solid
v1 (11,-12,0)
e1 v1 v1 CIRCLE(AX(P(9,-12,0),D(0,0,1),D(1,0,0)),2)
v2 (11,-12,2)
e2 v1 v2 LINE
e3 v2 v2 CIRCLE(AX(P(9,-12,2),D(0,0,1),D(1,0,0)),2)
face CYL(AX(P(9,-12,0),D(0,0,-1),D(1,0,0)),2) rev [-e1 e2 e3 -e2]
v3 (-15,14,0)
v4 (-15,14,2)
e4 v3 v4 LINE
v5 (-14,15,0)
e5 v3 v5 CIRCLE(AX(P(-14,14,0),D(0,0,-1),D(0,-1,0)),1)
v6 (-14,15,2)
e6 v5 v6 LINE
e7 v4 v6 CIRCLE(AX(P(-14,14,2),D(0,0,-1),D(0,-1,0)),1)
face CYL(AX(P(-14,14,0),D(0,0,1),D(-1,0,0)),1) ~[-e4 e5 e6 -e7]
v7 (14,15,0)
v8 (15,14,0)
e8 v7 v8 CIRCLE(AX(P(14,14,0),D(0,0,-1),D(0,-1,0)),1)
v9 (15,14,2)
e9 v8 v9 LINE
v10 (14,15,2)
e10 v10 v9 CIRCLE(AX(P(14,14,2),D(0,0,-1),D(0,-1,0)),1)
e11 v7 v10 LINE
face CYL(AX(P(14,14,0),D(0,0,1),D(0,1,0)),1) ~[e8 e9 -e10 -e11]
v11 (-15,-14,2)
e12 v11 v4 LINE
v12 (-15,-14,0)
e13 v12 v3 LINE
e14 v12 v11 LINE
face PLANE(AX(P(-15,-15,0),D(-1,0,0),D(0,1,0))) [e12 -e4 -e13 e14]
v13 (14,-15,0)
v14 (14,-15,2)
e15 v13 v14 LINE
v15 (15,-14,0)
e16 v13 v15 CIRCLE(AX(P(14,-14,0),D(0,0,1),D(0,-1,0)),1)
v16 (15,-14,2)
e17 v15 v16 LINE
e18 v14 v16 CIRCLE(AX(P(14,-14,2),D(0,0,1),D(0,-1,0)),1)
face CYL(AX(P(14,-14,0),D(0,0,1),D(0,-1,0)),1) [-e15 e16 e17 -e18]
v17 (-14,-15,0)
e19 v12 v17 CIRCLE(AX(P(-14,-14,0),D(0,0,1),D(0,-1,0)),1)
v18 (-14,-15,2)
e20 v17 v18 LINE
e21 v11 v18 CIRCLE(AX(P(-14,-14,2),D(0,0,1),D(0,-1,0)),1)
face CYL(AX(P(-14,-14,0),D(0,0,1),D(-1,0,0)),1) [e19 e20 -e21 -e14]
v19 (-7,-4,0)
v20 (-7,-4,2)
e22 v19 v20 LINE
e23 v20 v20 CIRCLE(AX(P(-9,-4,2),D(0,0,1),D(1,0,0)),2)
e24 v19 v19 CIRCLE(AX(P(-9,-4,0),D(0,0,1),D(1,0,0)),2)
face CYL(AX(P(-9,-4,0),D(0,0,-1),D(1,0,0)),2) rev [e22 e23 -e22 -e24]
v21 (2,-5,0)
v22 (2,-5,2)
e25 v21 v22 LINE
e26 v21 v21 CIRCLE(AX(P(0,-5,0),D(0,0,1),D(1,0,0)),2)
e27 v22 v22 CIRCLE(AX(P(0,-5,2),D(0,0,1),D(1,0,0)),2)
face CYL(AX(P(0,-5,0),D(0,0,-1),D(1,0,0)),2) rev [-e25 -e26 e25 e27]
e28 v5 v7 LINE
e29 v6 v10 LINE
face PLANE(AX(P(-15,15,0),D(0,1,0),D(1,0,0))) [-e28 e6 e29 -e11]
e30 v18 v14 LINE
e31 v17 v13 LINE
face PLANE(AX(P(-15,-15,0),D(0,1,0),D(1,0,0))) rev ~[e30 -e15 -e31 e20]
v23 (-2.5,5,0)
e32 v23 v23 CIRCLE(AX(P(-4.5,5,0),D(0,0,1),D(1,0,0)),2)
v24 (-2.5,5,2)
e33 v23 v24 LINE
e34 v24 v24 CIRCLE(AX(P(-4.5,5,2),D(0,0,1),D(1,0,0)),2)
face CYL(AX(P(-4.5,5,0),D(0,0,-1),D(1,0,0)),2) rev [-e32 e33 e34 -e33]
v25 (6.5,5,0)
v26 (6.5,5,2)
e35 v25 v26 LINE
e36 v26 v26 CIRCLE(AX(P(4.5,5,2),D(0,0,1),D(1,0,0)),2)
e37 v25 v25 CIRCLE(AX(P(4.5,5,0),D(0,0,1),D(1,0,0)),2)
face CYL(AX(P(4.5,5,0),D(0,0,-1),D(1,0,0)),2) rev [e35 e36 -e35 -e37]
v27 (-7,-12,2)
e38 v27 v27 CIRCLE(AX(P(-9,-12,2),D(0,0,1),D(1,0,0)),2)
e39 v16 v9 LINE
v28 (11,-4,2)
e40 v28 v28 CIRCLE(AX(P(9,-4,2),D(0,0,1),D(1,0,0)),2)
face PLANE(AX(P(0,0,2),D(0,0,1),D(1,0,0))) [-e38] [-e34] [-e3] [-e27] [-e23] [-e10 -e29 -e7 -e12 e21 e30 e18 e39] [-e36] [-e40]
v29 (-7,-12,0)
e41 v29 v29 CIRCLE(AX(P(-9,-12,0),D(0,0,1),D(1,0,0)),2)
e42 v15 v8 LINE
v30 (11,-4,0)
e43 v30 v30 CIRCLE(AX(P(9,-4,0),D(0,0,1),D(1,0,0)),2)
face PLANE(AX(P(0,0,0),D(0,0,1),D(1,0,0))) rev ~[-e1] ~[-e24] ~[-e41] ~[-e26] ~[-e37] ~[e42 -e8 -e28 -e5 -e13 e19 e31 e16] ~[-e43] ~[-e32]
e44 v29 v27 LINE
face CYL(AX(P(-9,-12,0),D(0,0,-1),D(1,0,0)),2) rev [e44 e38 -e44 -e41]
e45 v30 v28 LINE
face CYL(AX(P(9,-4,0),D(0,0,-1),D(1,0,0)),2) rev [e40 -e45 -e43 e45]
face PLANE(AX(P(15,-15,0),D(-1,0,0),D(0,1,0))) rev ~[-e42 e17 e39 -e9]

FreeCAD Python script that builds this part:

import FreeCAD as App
import Part
import Sketcher

V = App.Vector
Q = App.Units.Quantity


def edges_at(feature, points):
    """Names of the edges that pass closest to the given points."""
    edges = feature.Shape.Edges
    near = lambda p: min(range(len(edges)), key=lambda i: edges[i].distToShape(Part.Vertex(*p))[0])
    return sorted({f"Edge{near(p) + 1}" for p in points})


def add_polygon(sketch, points):
    """Adds a closed chain of lines whose ends are joined by coincident constraints."""
    first, n = sketch.GeometryCount, len(points)
    for a, b in zip(points, points[1:] + points[:1]):
        sketch.addGeometry(Part.LineSegment(App.Vector(*a, 0), App.Vector(*b, 0)), False)
    for i in range(n):
        sketch.addConstraint(Sketcher.Constraint("Coincident", first + i, 2, first + (i + 1) % n, 1))

doc = App.newDocument("Part")
body = doc.addObject("PartDesign::Body", "Body")

# Sketch on XY plane
sketch1 = body.newObject("Sketcher::SketchObject", "Sketch")
sketch1.AttachmentSupport = (doc.getObject("XY_Plane"), [""])
sketch1.MapMode = "FlatFace"
add_polygon(sketch1, [(-15, 15), (-15, -15), (15, -15), (15, 15)])  # lines 0-3
sketch1.addGeometry(Part.Circle(V(-9, -12, 0), V(0, 0, 1), 2), False)  # 4
sketch1.addGeometry(Part.Circle(V(-9, -4, 0), V(0, 0, 1), 2), False)  # 5
sketch1.addGeometry(Part.Circle(V(9, -12, 0), V(0, 0, 1), 2), False)  # 6
sketch1.addGeometry(Part.Circle(V(0, -5, 0), V(0, 0, 1), 2), False)  # 7
sketch1.addGeometry(Part.Circle(V(9, -4, 0), V(0, 0, 1), 2), False)  # 8
sketch1.addGeometry(Part.Circle(V(-4.5, 5, 0), V(0, 0, 1), 2), False)  # 9
sketch1.addGeometry(Part.Circle(V(4.5, 5, 0), V(0, 0, 1), 2), False)  # 10
sketch1.addConstraint([
    Sketcher.Constraint("Vertical", 0),
    Sketcher.Constraint("Horizontal", 1),
    Sketcher.Constraint("Vertical", 2),
    Sketcher.Constraint("Horizontal", 3),
    Sketcher.Constraint("Equal", 4, 5),
    Sketcher.Constraint("Equal", 5, 6),
    Sketcher.Constraint("Equal", 6, 7),
    Sketcher.Constraint("Equal", 7, 8),
    Sketcher.Constraint("Equal", 8, 9),
    Sketcher.Constraint("Equal", 9, 10),
    Sketcher.Constraint("Symmetric", 0, 2, 2, 2, -1, 1),
    Sketcher.Constraint("Symmetric", 4, 3, 6, 3, -2),
    Sketcher.Constraint("Symmetric", 5, 3, 8, 3, -2),
    Sketcher.Constraint("Symmetric", 9, 3, 10, 3, -2),
    Sketcher.Constraint("PointOnObject", 7, 3, -2),
    Sketcher.Constraint("Vertical", 4, 3, 5, 3),
    Sketcher.Constraint("Equal", 3, 0),
    Sketcher.Constraint("Diameter", 4, Q("4 mm")),
    Sketcher.Constraint("DistanceX", 1, 1, 1, 2, Q("30 mm")),
    Sketcher.Constraint("DistanceX", 4, 3, -1, 1, Q("9 mm")),
    Sketcher.Constraint("DistanceY", 4, 3, -1, 1, Q("12 mm")),
    Sketcher.Constraint("DistanceY", 5, 3, -1, 1, Q("4 mm")),
    Sketcher.Constraint("DistanceY", 7, 3, -1, 1, Q("5 mm")),
    Sketcher.Constraint("DistanceY", -1, 1, 9, 3, Q("5 mm")),
    Sketcher.Constraint("DistanceX", 9, 3, 10, 3, Q("9 mm")),
])
pad1 = body.newObject("PartDesign::Pad", "Pad")
pad1.Profile = sketch1
pad1.Length = 2
doc.recompute()

fillet = body.newObject("PartDesign::Fillet", "Fillet")
fillet.Base = (pad1, edges_at(pad1, [
    (-15, -15, 1),
    (15, -15, 1),
    (-15, 15, 1),
    (15, 15, 1),
]))
fillet.Radius = 1

doc.recompute()
